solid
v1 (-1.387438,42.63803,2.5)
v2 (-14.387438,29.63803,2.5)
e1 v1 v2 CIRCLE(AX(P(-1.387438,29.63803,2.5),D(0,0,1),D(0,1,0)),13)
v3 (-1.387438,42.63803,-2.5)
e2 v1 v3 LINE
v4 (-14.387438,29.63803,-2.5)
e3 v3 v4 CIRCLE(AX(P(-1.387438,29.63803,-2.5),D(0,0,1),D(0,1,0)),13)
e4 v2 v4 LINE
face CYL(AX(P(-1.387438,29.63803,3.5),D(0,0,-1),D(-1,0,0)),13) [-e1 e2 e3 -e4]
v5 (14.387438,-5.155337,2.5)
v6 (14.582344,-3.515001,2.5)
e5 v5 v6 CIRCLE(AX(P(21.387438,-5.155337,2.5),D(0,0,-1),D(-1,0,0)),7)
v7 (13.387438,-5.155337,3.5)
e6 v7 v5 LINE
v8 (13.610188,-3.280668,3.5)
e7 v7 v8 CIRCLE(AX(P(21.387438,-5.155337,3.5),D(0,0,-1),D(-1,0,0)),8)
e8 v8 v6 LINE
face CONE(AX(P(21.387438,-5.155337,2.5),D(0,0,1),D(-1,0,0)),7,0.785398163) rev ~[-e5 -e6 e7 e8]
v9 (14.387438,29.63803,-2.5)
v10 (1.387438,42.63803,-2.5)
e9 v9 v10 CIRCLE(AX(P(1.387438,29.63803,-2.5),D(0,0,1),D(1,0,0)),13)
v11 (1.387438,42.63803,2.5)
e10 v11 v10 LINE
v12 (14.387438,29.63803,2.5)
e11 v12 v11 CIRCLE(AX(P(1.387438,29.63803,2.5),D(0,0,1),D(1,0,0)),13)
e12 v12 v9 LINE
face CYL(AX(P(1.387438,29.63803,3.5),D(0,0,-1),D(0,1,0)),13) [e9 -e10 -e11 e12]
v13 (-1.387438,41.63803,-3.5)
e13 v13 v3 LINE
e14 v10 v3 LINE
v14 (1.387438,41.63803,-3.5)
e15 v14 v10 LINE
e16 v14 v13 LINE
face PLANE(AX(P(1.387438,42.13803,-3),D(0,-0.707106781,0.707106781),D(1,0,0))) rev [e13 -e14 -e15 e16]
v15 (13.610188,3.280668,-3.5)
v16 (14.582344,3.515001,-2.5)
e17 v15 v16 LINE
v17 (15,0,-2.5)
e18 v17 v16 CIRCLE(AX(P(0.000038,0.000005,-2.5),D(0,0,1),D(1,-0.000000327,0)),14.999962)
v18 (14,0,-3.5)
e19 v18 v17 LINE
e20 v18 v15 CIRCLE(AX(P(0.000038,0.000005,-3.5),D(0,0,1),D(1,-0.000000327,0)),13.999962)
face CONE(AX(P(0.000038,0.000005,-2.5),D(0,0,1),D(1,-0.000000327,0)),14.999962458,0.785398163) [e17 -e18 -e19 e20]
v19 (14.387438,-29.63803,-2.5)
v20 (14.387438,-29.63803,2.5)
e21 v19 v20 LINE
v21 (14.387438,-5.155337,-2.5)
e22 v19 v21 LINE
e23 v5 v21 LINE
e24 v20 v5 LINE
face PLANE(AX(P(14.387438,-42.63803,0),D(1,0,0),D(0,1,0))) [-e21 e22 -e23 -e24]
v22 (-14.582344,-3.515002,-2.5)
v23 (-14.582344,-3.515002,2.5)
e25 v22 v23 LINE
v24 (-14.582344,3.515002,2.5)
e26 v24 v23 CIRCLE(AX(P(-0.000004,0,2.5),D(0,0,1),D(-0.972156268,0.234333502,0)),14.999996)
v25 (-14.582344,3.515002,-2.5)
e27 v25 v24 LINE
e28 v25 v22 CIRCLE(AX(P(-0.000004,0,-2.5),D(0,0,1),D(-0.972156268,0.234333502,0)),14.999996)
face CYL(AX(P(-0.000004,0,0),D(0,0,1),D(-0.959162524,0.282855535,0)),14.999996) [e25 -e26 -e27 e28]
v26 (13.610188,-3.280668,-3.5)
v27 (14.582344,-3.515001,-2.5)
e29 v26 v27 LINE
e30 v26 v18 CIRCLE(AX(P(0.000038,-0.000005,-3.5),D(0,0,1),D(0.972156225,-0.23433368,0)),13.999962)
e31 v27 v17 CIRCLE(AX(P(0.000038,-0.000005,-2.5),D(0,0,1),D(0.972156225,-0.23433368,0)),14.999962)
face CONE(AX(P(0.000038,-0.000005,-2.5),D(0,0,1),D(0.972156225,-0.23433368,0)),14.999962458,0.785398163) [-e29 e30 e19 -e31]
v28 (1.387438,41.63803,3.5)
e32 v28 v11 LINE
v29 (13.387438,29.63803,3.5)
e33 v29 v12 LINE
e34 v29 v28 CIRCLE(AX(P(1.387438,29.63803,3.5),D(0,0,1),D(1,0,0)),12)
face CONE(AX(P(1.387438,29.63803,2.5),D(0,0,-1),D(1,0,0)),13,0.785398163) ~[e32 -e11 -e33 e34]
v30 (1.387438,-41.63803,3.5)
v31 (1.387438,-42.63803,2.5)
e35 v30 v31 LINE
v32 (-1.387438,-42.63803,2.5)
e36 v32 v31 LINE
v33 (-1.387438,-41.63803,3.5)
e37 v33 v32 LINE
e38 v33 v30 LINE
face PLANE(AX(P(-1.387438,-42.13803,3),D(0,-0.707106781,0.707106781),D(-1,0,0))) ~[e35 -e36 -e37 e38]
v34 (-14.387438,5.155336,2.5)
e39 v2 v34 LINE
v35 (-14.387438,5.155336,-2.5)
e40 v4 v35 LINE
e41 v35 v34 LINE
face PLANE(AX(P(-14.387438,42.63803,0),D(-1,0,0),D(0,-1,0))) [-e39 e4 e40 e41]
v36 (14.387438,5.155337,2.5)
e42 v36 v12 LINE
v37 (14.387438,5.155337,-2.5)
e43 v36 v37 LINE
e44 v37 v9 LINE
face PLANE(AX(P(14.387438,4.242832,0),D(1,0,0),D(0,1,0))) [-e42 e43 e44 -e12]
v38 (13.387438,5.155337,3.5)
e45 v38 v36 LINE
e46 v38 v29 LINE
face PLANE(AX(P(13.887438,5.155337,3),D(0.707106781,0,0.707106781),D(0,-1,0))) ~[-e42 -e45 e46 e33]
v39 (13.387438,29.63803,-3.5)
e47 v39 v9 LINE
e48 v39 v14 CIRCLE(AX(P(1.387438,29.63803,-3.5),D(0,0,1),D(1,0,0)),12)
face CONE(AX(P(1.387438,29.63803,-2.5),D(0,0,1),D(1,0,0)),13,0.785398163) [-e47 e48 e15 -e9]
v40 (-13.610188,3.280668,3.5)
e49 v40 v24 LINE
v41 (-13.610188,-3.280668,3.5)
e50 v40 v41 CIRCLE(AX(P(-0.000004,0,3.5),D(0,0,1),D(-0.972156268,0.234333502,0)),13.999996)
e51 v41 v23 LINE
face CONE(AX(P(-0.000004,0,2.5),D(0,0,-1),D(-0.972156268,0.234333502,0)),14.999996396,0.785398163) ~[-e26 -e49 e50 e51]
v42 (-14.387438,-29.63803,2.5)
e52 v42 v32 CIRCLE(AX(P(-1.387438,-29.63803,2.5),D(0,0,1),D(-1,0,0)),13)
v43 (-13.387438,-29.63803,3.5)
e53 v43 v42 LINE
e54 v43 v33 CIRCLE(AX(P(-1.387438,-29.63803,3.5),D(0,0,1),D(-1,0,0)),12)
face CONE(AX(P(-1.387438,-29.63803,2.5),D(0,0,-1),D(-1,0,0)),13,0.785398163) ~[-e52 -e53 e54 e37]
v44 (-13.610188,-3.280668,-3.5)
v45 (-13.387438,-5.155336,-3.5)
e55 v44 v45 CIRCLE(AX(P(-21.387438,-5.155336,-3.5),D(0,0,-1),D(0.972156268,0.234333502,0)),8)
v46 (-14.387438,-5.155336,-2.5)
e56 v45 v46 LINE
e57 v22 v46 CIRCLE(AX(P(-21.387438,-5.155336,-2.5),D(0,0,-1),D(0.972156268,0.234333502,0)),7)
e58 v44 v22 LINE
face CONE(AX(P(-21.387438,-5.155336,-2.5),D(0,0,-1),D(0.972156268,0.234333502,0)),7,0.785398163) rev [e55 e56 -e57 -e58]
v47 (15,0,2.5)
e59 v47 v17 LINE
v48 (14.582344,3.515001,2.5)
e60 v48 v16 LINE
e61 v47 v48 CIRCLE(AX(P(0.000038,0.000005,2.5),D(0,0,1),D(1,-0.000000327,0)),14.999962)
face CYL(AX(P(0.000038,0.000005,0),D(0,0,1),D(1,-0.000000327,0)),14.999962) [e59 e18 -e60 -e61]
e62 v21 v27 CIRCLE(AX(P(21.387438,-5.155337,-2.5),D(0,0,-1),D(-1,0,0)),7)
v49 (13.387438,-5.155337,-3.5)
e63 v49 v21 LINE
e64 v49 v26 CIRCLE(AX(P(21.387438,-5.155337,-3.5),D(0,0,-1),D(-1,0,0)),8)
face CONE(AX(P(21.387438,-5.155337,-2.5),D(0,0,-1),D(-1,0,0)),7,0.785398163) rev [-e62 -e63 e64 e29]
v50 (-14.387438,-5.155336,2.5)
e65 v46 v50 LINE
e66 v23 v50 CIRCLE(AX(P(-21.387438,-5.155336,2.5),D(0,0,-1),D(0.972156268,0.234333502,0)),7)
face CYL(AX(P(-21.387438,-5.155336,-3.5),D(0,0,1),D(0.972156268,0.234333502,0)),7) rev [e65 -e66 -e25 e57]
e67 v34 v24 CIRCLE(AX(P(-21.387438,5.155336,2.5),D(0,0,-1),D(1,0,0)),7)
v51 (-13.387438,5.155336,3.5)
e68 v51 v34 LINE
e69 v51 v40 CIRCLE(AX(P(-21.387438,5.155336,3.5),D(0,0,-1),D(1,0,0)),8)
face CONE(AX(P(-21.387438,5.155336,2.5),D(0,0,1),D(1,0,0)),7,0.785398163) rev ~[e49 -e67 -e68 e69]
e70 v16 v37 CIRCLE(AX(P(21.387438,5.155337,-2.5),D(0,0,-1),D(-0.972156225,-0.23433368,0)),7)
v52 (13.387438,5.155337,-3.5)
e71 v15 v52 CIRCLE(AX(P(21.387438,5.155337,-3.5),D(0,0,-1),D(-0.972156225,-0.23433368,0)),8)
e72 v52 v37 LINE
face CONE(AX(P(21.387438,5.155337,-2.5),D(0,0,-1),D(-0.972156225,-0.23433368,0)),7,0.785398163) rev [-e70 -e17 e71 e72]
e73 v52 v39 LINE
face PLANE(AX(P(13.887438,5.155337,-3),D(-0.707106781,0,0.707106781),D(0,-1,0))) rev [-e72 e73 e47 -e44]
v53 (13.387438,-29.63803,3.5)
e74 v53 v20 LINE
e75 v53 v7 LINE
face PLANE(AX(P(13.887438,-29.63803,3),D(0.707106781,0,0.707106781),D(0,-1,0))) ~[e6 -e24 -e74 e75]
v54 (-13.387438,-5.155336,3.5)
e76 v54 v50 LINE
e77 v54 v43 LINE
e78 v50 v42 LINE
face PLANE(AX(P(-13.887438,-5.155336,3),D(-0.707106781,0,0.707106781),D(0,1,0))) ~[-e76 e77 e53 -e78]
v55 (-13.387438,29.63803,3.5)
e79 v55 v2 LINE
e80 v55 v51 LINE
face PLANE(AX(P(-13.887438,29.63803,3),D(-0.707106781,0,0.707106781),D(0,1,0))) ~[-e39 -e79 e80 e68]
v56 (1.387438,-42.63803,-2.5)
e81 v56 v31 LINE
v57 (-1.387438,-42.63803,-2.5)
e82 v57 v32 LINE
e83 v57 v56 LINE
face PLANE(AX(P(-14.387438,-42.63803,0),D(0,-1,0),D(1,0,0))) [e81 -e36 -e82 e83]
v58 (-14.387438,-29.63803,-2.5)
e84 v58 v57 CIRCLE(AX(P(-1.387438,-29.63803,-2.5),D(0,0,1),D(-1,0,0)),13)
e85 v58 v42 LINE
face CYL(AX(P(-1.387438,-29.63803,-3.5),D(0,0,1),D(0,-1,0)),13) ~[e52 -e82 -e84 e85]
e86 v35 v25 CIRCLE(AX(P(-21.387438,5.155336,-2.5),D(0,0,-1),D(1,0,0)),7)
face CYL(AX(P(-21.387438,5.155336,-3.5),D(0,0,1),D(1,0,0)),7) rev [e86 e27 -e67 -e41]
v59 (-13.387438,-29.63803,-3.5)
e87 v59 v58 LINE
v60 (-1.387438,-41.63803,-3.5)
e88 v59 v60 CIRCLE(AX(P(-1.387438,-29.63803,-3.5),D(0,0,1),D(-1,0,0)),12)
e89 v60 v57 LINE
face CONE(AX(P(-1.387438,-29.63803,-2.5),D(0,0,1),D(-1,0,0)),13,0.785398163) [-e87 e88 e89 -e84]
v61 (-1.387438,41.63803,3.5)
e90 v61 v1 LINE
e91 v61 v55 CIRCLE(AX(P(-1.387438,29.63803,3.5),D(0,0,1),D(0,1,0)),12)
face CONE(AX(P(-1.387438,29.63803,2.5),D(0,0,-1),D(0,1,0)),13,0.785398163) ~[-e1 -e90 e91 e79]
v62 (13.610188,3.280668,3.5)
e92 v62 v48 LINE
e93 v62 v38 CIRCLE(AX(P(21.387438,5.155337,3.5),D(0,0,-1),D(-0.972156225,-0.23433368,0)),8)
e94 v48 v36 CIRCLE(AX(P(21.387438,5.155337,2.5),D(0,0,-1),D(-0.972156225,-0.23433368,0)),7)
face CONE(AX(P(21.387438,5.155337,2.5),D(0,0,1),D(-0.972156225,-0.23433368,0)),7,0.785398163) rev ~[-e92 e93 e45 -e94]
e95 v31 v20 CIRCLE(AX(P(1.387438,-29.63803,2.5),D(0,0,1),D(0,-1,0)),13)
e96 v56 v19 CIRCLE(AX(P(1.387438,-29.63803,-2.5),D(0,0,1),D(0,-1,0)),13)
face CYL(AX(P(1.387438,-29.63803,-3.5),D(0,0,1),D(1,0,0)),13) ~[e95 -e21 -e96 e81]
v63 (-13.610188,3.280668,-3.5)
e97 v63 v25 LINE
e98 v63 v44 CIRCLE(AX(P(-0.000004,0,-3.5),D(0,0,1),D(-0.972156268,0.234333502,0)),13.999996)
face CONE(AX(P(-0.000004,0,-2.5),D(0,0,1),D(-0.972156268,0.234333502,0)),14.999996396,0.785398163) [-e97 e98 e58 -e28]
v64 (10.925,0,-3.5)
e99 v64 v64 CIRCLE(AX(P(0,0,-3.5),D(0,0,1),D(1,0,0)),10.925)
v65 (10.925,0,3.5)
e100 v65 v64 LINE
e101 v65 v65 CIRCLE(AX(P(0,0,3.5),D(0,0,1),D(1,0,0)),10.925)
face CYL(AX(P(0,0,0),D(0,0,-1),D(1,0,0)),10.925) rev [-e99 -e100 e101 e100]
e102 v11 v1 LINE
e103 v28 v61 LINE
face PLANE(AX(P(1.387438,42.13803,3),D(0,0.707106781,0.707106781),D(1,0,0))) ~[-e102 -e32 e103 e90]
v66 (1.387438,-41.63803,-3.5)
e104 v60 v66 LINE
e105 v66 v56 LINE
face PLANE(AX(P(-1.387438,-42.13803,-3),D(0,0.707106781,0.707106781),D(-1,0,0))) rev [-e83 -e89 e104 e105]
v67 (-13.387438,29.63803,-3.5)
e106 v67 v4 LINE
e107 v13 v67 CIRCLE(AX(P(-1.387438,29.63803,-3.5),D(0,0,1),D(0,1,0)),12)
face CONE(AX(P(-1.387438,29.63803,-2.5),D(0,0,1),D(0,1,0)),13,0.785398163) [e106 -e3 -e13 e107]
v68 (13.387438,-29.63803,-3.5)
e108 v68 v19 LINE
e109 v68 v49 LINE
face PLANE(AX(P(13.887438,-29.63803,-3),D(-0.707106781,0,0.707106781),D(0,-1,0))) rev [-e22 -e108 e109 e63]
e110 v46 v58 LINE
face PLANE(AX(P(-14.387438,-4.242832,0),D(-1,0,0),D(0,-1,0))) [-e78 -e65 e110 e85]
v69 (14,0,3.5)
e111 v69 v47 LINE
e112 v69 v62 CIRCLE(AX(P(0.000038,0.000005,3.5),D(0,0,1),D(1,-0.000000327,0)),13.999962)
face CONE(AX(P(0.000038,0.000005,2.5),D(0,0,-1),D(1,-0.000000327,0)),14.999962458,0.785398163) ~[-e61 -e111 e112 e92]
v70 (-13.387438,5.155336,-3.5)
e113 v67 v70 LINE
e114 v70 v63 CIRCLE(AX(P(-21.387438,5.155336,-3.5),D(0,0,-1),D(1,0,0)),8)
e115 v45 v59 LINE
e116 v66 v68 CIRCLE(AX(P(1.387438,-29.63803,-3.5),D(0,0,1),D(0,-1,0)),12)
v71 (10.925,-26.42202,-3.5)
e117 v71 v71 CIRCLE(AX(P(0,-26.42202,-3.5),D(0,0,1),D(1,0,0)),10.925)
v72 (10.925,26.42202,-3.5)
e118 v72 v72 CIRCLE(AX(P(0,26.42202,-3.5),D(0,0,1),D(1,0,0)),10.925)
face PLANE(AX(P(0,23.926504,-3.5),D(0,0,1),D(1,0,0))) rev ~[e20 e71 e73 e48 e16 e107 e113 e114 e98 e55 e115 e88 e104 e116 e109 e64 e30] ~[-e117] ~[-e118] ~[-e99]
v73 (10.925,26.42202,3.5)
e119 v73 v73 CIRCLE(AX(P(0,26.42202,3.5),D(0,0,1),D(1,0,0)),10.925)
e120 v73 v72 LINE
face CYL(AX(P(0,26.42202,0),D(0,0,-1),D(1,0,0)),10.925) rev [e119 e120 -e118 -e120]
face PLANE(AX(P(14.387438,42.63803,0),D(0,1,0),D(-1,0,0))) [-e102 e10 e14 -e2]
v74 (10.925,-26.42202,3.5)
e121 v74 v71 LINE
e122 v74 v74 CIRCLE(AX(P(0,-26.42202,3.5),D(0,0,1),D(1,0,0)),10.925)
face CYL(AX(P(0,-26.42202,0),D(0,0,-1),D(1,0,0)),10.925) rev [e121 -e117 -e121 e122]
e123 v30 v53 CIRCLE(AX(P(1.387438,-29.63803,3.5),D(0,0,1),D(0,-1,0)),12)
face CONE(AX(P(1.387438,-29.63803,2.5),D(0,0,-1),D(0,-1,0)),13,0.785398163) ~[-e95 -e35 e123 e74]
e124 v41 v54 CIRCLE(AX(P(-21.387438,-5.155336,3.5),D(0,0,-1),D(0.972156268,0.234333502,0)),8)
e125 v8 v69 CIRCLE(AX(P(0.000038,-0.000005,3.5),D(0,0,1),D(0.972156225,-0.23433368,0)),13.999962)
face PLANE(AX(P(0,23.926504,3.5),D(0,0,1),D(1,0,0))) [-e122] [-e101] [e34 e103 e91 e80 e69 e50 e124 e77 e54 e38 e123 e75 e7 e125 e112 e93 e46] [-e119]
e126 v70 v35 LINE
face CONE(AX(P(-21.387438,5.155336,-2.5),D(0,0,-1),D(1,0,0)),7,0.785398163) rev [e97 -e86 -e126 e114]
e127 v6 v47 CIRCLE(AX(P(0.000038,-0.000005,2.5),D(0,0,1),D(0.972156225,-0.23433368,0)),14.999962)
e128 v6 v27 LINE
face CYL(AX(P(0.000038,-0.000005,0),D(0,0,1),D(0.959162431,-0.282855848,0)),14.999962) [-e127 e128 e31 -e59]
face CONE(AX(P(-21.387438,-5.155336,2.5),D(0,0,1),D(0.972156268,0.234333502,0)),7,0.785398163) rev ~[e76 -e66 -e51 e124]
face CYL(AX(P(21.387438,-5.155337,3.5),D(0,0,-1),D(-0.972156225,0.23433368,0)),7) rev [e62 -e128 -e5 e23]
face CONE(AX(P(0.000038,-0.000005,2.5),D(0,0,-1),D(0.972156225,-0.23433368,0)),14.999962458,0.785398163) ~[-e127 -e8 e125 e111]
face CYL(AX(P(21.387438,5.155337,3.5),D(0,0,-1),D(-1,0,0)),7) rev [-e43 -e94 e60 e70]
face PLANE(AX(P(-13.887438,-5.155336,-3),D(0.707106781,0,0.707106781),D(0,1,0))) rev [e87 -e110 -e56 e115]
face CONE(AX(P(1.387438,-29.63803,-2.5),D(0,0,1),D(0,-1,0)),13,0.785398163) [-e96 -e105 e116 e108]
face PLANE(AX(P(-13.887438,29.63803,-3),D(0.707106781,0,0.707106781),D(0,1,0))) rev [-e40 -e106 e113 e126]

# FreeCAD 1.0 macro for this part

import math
import FreeCAD as App
import Part
import Sketcher


def edges_at(feature, points):
    """Names of the edges that pass closest to the given points."""
    edges = feature.Shape.Edges
    near = lambda p: min(range(len(edges)), key=lambda i: edges[i].distToShape(Part.Vertex(*p))[0])
    return sorted({f"Edge{near(p) + 1}" for p in points})

doc = App.newDocument("Part")
body = doc.addObject("PartDesign::Body", "Body")

# Sketch on XY plane
sketch1 = body.newObject("Sketcher::SketchObject", "Sketch")
sketch1.AttachmentSupport = (doc.getObject("XY_Plane"), [""])
sketch1.MapMode = "FlatFace"
sketch1.addGeometry([
    Part.LineSegment(App.Vector(-14.387438, 42.63803, 0), App.Vector(-14.387438, 4.242832, 0)),  # 0
    Part.ArcOfCircle(Part.Circle(App.Vector(-0.000004, 0, 0), App.Vector(0, 0, 1), 14.999996), math.radians(163.569294), math.radians(196.430706)),  # 1
    Part.LineSegment(App.Vector(-14.387438, -4.242832, 0), App.Vector(-14.387438, -42.63803, 0)),  # 2
    Part.LineSegment(App.Vector(-14.387438, -42.63803, 0), App.Vector(14.387438, -42.63803, 0)),  # 3
    Part.LineSegment(App.Vector(14.387438, -42.63803, 0), App.Vector(14.387438, -4.242832, 0)),  # 4
    Part.ArcOfCircle(Part.Circle(App.Vector(0.000038, -0.000005, 0), App.Vector(0, 0, 1), 14.999962), math.radians(-16.430725), math.radians(0.000019)),  # 5
    Part.ArcOfCircle(Part.Circle(App.Vector(0.000038, 0.000005, 0), App.Vector(0, 0, 1), 14.999962), math.radians(-0.000019), math.radians(16.430725)),  # 6
    Part.LineSegment(App.Vector(14.387438, 4.242832, 0), App.Vector(14.387438, 42.63803, 0)),  # 7
    Part.LineSegment(App.Vector(14.387438, 42.63803, 0), App.Vector(-14.387438, 42.63803, 0)),  # 8
    Part.Circle(App.Vector(0, -26.42202, 0), App.Vector(0, 0, 1), 10.925),  # 9
    Part.Circle(App.Vector(0, 0, 0), App.Vector(0, 0, 1), 10.925),  # 10
    Part.Circle(App.Vector(0, 26.42202, 0), App.Vector(0, 0, 1), 10.925),  # 11
], False)
sketch1.addConstraint([
    Sketcher.Constraint("Coincident", 0, 2, 1, 1),
    Sketcher.Constraint("Coincident", 1, 2, 2, 1),
    Sketcher.Constraint("Coincident", 2, 2, 3, 1),
    Sketcher.Constraint("Coincident", 3, 2, 4, 1),
    Sketcher.Constraint("Coincident", 4, 2, 5, 1),
    Sketcher.Constraint("Coincident", 5, 2, 6, 1),
    Sketcher.Constraint("Coincident", 6, 2, 7, 1),
    Sketcher.Constraint("Coincident", 7, 2, 8, 1),
    Sketcher.Constraint("Coincident", 8, 2, 0, 1),
    Sketcher.Constraint("Vertical", 0),
    Sketcher.Constraint("Vertical", 2),
    Sketcher.Constraint("Horizontal", 3),
    Sketcher.Constraint("Vertical", 4),
    Sketcher.Constraint("Vertical", 7),
    Sketcher.Constraint("Horizontal", 8),
    Sketcher.Constraint("Coincident", 1, 3, -1, 1),
    Sketcher.Constraint("Coincident", 10, 3, -1, 1),
    Sketcher.Constraint("Coincident", 6, 3, 5, 3),
    Sketcher.Constraint("PointOnObject", 9, 3, -2),
    Sketcher.Constraint("PointOnObject", 11, 3, -2),
    Sketcher.Constraint("PointOnObject", 5, 2, -1),
    Sketcher.Constraint("Diameter", 9, 21.85),
    Sketcher.Constraint("Diameter", 10, 21.85),
    Sketcher.Constraint("Diameter", 11, 21.85),
    Sketcher.Constraint("DistanceX", -1, 1, 5, 2, 15.0),
    Sketcher.Constraint("Radius", 1, 14.999996),
    Sketcher.Constraint("Radius", 5, 14.999962),
    Sketcher.Constraint("DistanceX", 5, 3, 3, 2, 14.3874),
    Sketcher.Constraint("DistanceX", 6, 3, 6, 2, 14.3874),
    Sketcher.Constraint("DistanceX", 3, 1, 3, 2, 28.774876),
    Sketcher.Constraint("DistanceX", 8, 2, 8, 1, 28.774876),
    Sketcher.Constraint("DistanceY", 0, 2, 0, 1, 38.395198),
    Sketcher.Constraint("DistanceY", 2, 2, 2, 1, 38.395198),
    Sketcher.Constraint("DistanceY", 4, 1, 4, 2, 38.395198),
    Sketcher.Constraint("DistanceY", 9, 3, -1, 1, 26.42202),
    Sketcher.Constraint("DistanceY", -1, 1, 11, 3, 26.42202),
])
pad1 = body.newObject("PartDesign::Pad", "Pad")
pad1.Profile = sketch1
pad1.Length = 7
pad1.Midplane = True
doc.recompute()

fillet = body.newObject("PartDesign::Fillet", "Fillet")
fillet.Base = (pad1, edges_at(pad1, [
    (-14.387, 42.638, 0),
    (14.387, 42.638, 0),
    (14.387, -42.638, 0),
    (-14.387, -42.638, 0),
]))
fillet.Radius = 13
doc.recompute()

fillet2 = body.newObject("PartDesign::Fillet", "Fillet001")
fillet2.Base = (fillet, edges_at(fillet, [
    (14.387, -4.243, 0),
    (14.387, 4.243, 0),
    (-14.387, 4.243, 0),
    (-14.387, -4.243, 0),
]))
fillet2.Radius = 7
doc.recompute()

chamfer = body.newObject("PartDesign::Chamfer", "Chamfer")
chamfer.Base = (fillet2, edges_at(fillet2, [(14.387, -17.397, 3.5), (14.387, -17.397, -3.5)]))
chamfer.Size = 1

doc.recompute()
